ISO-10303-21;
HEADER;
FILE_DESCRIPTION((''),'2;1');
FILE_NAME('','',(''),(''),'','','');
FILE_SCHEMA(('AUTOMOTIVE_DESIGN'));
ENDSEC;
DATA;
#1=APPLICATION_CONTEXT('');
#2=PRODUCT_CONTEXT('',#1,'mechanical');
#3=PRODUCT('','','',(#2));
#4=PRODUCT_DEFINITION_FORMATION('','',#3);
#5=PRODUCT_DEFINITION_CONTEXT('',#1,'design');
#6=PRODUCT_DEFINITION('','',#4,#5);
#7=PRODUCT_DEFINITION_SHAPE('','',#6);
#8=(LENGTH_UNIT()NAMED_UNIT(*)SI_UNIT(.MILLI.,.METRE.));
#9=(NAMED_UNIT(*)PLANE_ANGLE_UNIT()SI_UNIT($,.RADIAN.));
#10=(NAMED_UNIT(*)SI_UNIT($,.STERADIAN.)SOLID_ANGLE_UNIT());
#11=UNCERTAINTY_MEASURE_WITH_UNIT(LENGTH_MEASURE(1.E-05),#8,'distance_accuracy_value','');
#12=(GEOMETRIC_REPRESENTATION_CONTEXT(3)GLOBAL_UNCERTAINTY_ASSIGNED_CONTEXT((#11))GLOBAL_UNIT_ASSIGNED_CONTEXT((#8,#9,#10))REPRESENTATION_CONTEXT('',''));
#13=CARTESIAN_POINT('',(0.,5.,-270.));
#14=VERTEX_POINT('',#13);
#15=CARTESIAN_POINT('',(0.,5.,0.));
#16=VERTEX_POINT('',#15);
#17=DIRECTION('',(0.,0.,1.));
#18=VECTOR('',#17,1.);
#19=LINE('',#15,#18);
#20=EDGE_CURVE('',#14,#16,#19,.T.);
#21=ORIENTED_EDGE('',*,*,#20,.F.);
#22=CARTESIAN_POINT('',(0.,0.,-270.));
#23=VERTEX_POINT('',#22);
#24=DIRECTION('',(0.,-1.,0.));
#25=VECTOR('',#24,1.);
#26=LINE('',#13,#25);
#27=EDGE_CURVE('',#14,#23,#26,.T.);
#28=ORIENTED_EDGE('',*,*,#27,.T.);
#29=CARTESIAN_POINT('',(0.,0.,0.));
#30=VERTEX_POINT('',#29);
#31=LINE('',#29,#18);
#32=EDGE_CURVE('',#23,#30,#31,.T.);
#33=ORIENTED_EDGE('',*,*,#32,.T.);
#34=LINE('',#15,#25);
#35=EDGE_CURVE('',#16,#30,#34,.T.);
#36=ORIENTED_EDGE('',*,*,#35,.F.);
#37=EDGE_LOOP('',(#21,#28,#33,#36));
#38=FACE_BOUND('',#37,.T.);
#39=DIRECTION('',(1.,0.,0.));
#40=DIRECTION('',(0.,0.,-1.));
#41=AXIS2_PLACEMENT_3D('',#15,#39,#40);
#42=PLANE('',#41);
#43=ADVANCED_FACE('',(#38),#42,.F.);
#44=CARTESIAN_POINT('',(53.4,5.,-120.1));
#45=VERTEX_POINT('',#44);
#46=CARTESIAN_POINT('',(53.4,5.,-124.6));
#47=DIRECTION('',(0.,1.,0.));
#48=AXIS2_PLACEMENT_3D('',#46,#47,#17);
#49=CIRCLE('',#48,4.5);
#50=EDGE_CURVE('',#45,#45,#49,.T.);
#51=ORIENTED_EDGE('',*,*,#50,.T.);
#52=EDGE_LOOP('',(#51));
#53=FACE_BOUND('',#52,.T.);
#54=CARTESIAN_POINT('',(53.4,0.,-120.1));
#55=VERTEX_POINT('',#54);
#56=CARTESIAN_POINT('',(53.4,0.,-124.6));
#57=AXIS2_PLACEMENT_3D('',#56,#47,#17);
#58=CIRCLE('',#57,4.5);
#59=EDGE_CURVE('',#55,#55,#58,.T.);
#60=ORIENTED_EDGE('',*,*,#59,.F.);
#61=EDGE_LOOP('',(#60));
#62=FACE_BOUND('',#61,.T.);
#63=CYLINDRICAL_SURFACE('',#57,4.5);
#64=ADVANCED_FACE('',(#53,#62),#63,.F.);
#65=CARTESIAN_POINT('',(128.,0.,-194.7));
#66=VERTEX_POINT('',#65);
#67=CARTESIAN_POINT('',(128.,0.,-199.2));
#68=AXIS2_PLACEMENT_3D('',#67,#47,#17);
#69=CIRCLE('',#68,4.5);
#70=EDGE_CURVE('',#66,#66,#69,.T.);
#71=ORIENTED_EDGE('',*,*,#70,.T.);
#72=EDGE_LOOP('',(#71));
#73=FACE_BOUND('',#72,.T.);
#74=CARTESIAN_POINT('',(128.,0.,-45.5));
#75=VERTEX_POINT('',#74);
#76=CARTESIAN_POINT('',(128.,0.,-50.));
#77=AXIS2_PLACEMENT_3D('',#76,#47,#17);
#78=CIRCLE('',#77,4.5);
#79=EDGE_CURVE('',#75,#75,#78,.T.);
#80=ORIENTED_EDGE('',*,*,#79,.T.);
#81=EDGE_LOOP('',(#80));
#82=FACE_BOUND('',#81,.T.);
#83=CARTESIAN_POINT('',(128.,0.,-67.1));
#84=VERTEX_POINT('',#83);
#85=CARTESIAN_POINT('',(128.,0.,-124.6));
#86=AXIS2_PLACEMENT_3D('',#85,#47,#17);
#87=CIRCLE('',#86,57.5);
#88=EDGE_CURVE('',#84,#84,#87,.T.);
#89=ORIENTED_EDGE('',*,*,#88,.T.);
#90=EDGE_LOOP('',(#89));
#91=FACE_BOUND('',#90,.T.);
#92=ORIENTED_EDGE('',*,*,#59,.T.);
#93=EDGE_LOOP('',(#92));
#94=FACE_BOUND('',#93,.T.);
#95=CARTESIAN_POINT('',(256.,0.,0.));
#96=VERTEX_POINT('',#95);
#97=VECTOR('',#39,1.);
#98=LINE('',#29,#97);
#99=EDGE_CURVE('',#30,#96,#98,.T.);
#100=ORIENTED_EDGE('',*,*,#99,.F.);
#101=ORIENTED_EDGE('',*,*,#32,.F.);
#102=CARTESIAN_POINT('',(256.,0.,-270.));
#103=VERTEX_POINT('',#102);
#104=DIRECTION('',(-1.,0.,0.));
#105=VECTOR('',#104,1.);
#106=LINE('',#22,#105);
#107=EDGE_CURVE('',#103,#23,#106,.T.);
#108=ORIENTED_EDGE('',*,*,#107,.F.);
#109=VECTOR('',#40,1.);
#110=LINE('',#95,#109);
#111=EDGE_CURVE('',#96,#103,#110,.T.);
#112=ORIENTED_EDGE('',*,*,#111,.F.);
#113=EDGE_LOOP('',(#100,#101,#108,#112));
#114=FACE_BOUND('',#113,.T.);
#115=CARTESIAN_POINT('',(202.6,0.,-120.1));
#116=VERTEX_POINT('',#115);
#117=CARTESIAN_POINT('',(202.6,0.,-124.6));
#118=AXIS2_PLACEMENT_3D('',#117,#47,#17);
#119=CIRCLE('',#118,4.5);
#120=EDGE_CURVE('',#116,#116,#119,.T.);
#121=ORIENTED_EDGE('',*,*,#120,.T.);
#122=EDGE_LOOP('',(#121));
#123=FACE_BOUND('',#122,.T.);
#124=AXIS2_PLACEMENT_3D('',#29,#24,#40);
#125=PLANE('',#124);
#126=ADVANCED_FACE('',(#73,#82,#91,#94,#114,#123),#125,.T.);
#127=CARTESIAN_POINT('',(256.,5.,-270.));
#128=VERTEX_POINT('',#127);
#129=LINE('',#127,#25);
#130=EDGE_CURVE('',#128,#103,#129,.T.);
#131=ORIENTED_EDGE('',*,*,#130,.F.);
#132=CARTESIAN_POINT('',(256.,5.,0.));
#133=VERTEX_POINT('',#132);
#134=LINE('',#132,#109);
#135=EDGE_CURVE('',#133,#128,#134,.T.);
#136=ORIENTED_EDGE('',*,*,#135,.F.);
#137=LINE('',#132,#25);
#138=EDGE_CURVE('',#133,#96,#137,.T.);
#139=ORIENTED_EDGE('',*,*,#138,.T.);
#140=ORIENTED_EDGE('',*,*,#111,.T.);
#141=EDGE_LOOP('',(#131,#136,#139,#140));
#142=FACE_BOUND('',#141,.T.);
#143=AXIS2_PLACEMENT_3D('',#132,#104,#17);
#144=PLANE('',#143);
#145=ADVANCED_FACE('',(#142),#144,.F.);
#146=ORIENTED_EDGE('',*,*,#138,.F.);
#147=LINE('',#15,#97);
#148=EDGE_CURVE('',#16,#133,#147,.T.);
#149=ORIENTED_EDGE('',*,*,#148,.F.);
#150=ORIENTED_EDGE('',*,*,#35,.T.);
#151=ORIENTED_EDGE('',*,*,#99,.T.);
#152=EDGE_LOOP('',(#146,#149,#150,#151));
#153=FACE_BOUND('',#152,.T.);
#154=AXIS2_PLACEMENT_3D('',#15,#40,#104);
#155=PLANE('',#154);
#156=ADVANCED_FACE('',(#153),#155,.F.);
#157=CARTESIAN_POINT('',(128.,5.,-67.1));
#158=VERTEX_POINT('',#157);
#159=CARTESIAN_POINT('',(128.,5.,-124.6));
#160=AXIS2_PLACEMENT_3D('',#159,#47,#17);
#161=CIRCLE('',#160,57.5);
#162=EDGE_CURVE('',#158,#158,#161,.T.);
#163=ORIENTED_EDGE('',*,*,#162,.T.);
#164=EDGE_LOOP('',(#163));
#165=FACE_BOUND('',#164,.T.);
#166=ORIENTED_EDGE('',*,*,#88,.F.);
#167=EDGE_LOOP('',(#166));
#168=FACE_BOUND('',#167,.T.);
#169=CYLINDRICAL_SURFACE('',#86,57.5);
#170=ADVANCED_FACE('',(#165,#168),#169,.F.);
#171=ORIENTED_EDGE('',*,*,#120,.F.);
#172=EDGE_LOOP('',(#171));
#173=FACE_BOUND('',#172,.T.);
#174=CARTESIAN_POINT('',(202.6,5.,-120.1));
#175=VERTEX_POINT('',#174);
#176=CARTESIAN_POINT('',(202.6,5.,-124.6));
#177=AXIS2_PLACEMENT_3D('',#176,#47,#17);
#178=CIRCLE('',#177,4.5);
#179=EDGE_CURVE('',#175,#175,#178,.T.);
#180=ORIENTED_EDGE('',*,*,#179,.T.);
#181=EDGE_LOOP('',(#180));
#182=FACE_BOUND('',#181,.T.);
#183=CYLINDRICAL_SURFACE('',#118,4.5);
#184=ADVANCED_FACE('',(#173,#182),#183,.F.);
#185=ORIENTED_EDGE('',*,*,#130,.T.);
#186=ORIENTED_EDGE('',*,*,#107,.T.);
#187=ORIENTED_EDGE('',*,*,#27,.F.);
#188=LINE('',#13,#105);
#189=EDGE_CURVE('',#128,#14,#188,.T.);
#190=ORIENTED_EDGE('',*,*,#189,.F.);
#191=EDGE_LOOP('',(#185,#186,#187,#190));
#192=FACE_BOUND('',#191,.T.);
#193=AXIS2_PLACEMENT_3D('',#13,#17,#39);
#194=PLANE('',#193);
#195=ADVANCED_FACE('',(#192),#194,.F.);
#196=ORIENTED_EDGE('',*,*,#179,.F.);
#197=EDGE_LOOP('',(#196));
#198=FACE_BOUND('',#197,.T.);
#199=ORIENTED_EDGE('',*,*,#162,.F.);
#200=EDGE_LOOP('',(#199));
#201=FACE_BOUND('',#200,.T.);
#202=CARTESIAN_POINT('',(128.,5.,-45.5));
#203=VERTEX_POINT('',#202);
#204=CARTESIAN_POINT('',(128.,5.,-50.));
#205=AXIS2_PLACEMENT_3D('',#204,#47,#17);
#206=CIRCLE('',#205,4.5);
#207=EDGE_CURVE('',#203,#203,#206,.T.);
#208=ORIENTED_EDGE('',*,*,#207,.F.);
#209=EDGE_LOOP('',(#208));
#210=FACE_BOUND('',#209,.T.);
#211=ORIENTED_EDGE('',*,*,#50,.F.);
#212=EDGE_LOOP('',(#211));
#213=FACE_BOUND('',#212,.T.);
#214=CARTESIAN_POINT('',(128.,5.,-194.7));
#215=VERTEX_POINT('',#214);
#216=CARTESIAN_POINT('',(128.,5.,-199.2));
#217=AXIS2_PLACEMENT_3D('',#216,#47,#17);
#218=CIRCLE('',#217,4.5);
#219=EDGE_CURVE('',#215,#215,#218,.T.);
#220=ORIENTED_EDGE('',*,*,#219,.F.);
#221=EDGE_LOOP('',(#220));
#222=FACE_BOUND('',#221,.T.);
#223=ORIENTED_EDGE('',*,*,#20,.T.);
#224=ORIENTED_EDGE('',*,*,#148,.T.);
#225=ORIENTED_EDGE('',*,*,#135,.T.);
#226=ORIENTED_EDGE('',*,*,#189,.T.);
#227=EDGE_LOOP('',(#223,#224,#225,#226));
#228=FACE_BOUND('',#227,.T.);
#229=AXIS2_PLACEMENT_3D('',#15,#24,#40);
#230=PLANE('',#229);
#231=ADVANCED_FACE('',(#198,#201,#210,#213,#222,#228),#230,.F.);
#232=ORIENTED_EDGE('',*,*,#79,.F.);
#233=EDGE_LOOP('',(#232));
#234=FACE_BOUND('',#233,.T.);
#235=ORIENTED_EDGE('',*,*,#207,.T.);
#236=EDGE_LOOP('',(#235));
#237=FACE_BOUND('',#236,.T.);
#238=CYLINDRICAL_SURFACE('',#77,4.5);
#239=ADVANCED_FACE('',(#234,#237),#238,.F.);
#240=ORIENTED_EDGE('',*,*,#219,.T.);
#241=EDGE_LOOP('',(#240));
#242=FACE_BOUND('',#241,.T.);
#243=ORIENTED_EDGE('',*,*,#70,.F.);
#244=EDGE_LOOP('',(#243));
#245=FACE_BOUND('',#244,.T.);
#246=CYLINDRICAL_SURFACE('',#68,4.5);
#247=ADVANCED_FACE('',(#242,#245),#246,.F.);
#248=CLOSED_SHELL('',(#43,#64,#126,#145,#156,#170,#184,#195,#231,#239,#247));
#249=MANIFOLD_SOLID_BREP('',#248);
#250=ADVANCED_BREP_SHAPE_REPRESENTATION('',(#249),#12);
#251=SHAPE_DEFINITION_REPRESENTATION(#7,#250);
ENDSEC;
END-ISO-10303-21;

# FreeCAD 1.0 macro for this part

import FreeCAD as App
import Part
import Sketcher

V = App.Vector
Q = App.Units.Quantity

doc = App.newDocument("Part")
body = doc.addObject("PartDesign::Body", "Body")

# Sketch on XZ plane
sketch1 = body.newObject("Sketcher::SketchObject", "Sketch")
sketch1.AttachmentSupport = (doc.getObject("XZ_Plane"), [""])
sketch1.MapMode = "FlatFace"
sketch1.addGeometry([
    Part.LineSegment(V(0, -270, 0), V(0, 0, 0)),
    Part.LineSegment(V(0, 0, 0), V(256, 0, 0)),
    Part.LineSegment(V(256, 0, 0), V(256, -270, 0)),
    Part.LineSegment(V(256, -270, 0), V(0, -270, 0)),
], False)
sketch1.addConstraint([
    Sketcher.Constraint("Coincident", 0, 2, 1, 1),
    Sketcher.Constraint("Coincident", 1, 2, 2, 1),
    Sketcher.Constraint("Coincident", 2, 2, 3, 1),
    Sketcher.Constraint("Coincident", 3, 2, 0, 1),
    Sketcher.Constraint("Vertical", 0),
    Sketcher.Constraint("Horizontal", 1),
    Sketcher.Constraint("Vertical", 2),
    Sketcher.Constraint("Horizontal", 3),
    Sketcher.Constraint("Coincident", 0, 2, -1, 1),
    Sketcher.Constraint("DistanceX", 1, 1, 1, 2, Q("256 mm")),
    Sketcher.Constraint("DistanceY", 0, 1, 0, 2, Q("270 mm")),
])
pad1 = body.newObject("PartDesign::Pad", "Pad")
pad1.Profile = sketch1
pad1.Length = 5
pad1.Reversed = True

# Sketch on XZ plane
sketch2 = body.newObject("Sketcher::SketchObject", "Sketch001")
sketch2.AttachmentSupport = (doc.getObject("XZ_Plane"), [""])
sketch2.MapMode = "FlatFace"
sketch2.AttachmentOffset = App.Placement(V(0, 0, -5), App.Rotation())
sketch2.addGeometry([
    Part.Circle(V(128, -124.6, 0), V(0, 0, 1), 57.5),  # 0
    Part.Circle(V(128, -199.2, 0), V(0, 0, 1), 4.5),  # 1
    Part.Circle(V(202.6, -124.6, 0), V(0, 0, 1), 4.5),  # 2
    Part.Circle(V(128, -50, 0), V(0, 0, 1), 4.5),  # 3
    Part.Circle(V(53.4, -124.6, 0), V(0, 0, 1), 4.5),  # 4
], False)
sketch2.addConstraint([
    Sketcher.Constraint("Equal", 1, 2),
    Sketcher.Constraint("Equal", 2, 3),
    Sketcher.Constraint("Equal", 3, 4),
    Sketcher.Constraint("Horizontal", 0, 3, 2, 3),
    Sketcher.Constraint("Horizontal", 2, 3, 4, 3),
    Sketcher.Constraint("Vertical", 0, 3, 1, 3),
    Sketcher.Constraint("Vertical", 1, 3, 3, 3),
    Sketcher.Constraint("Diameter", 0, Q("115 mm")),
    Sketcher.Constraint("Diameter", 1, Q("9 mm")),
    Sketcher.Constraint("DistanceX", -1, 1, 0, 3, Q("128 mm")),
    Sketcher.Constraint("DistanceY", 3, 3, -1, 1, Q("50 mm")),
    Sketcher.Constraint("DistanceY", 0, 3, -1, 1, Q("124.6 mm")),
    Sketcher.Constraint("DistanceY", 1, 3, -1, 1, Q("199.2 mm")),
    Sketcher.Constraint("DistanceX", -1, 1, 2, 3, Q("202.6 mm")),
    Sketcher.Constraint("DistanceX", -1, 1, 4, 3, Q("53.4 mm")),
])
pocket1 = body.newObject("PartDesign::Pocket", "Pocket")
pocket1.Profile = sketch2
pocket1.Length = 5
pocket1.Reversed = True

doc.recompute()
